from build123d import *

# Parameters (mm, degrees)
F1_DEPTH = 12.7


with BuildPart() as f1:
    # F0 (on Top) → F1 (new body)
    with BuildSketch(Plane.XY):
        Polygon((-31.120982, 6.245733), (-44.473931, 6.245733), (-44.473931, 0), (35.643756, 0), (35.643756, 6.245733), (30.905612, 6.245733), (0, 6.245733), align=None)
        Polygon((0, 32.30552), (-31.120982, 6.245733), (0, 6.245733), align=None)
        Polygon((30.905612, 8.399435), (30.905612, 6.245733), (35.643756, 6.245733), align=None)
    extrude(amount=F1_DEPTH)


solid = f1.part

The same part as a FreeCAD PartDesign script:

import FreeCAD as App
import Part
import Sketcher

V = App.Vector
Q = App.Units.Quantity


def add_polygon(sketch, points):
    """Adds a closed chain of lines whose ends are joined by coincident constraints."""
    first, n = sketch.GeometryCount, len(points)
    for a, b in zip(points, points[1:] + points[:1]):
        sketch.addGeometry(Part.LineSegment(App.Vector(*a, 0), App.Vector(*b, 0)), False)
    for i in range(n):
        sketch.addConstraint(Sketcher.Constraint("Coincident", first + i, 2, first + (i + 1) % n, 1))

doc = App.newDocument("Part")
body = doc.addObject("PartDesign::Body", "Body")

# Sketch on XY plane
sketch1 = body.newObject("Sketcher::SketchObject", "Sketch")
sketch1.AttachmentSupport = (doc.getObject("XY_Plane"), [""])
sketch1.MapMode = "FlatFace"
add_polygon(sketch1, [(-44.5, 6.2), (-44.5, 0), (35.6, 0), (35.6, 6.2), (30.9, 8.4), (30.9, 6.2), (0, 6.2), (0, 32.3), (-31.1, 6.2)])  # lines 0-8
sketch1.addConstraint(Sketcher.Constraint("Vertical", 0))
sketch1.addConstraint(Sketcher.Constraint("Horizontal", 1))
sketch1.addConstraint(Sketcher.Constraint("Vertical", 2))
sketch1.addConstraint(Sketcher.Constraint("Vertical", 4))
sketch1.addConstraint(Sketcher.Constraint("Horizontal", 5))
sketch1.addConstraint(Sketcher.Constraint("Vertical", 6))
sketch1.addConstraint(Sketcher.Constraint("Horizontal", 8))
sketch1.addConstraint(Sketcher.Constraint("PointOnObject", 0, 2, -1))
sketch1.addConstraint(Sketcher.Constraint("PointOnObject", 5, 2, -2))
sketch1.addConstraint(Sketcher.Constraint("Horizontal", 2, 2, 4, 2))
sketch1.addConstraint(Sketcher.Constraint("Horizontal", 5, 2, 7, 2))
sketch1.addConstraint(Sketcher.Constraint("DistanceY", 4, 2, 4, 1, Q("2.153702 mm")))
sketch1.addConstraint(Sketcher.Constraint("DistanceX", 8, 2, 8, 1, Q("13.352949 mm")))
sketch1.addConstraint(Sketcher.Constraint("DistanceX", 1, 1, 1, 2, Q("80.117687 mm")))
sketch1.addConstraint(Sketcher.Constraint("DistanceX", 5, 2, 5, 1, Q("30.905612 mm")))
sketch1.addConstraint(Sketcher.Constraint("DistanceY", 0, 2, 0, 1, Q("6.245733 mm")))
sketch1.addConstraint(Sketcher.Constraint("DistanceY", 6, 1, 6, 2, Q("26.059787 mm")))
sketch1.addConstraint(Sketcher.Constraint("DistanceX", 0, 2, -1, 1, Q("44.473931 mm")))
pad1 = body.newObject("PartDesign::Pad", "Pad")
pad1.Profile = sketch1
pad1.Length = Q("0.5 in")

doc.recompute()
